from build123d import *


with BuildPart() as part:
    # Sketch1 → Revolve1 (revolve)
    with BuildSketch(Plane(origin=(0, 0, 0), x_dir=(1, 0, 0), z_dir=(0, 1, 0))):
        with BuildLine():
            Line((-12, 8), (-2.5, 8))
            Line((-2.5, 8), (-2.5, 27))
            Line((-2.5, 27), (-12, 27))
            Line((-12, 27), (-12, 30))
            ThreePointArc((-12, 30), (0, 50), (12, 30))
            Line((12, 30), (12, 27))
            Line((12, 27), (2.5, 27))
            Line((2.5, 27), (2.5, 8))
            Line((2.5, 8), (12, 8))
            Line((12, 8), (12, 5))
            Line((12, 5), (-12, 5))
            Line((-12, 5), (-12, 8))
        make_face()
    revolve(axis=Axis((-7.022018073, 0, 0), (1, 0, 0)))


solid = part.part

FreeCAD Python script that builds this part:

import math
import FreeCAD as App
import Part
import Sketcher
Q = App.Units.Quantity

doc = App.newDocument("Part")
body = doc.addObject("PartDesign::Body", "Body")

# Sketch on XZ plane
sketch1 = doc.addObject("Sketcher::SketchObject", "Sketch")
body.addObject(sketch1)
sketch1.AttachmentSupport = (doc.XZ_Plane, [""])
sketch1.MapMode = "FlatFace"
sketch1.addGeometry([
    Part.LineSegment(App.Vector(-2.5, -8, 0), App.Vector(-12, -8, 0)),  # 0
    Part.LineSegment(App.Vector(-12, -8, 0), App.Vector(-12, -5, 0)),  # 1
    Part.LineSegment(App.Vector(-12, -5, 0), App.Vector(12, -5, 0)),  # 2
    Part.LineSegment(App.Vector(12, -5, 0), App.Vector(12, -8, 0)),  # 3
    Part.LineSegment(App.Vector(12, -8, 0), App.Vector(2.5, -8, 0)),  # 4
    Part.LineSegment(App.Vector(2.5, -8, 0), App.Vector(2.5, -27, 0)),  # 5
    Part.LineSegment(App.Vector(2.5, -27, 0), App.Vector(12, -27, 0)),  # 6
    Part.LineSegment(App.Vector(12, -27, 0), App.Vector(12, -30, 0)),  # 7
    Part.ArcOfCircle(Part.Circle(App.Vector(0, -36.4, 0), App.Vector(0, 0, 1), 13.6), math.radians(152), math.radians(388)),  # 8
    Part.LineSegment(App.Vector(-12, -30, 0), App.Vector(-12, -27, 0)),  # 9
    Part.LineSegment(App.Vector(-12, -27, 0), App.Vector(-2.5, -27, 0)),  # 10
    Part.LineSegment(App.Vector(-2.5, -27, 0), App.Vector(-2.5, -8, 0)),  # 11
], False)
sketch1.addConstraint([
    Sketcher.Constraint("Coincident", 0, 2, 1, 1),
    Sketcher.Constraint("Coincident", 1, 2, 2, 1),
    Sketcher.Constraint("Coincident", 2, 2, 3, 1),
    Sketcher.Constraint("Coincident", 3, 2, 4, 1),
    Sketcher.Constraint("Coincident", 4, 2, 5, 1),
    Sketcher.Constraint("Coincident", 5, 2, 6, 1),
    Sketcher.Constraint("Coincident", 6, 2, 7, 1),
    Sketcher.Constraint("Coincident", 7, 2, 8, 2),
    Sketcher.Constraint("Coincident", 8, 1, 9, 1),
    Sketcher.Constraint("Coincident", 9, 2, 10, 1),
    Sketcher.Constraint("Coincident", 10, 2, 11, 1),
    Sketcher.Constraint("Coincident", 11, 2, 0, 1),
    Sketcher.Constraint("Horizontal", 0),
    Sketcher.Constraint("Vertical", 1),
    Sketcher.Constraint("Horizontal", 2),
    Sketcher.Constraint("Vertical", 3),
    Sketcher.Constraint("Horizontal", 4),
    Sketcher.Constraint("Vertical", 5),
    Sketcher.Constraint("Horizontal", 6),
    Sketcher.Constraint("Vertical", 7),
    Sketcher.Constraint("Vertical", 9),
    Sketcher.Constraint("Horizontal", 10),
    Sketcher.Constraint("Vertical", 11),
    Sketcher.Constraint("Symmetric", 0, 2, 3, 2, -2),
    Sketcher.Constraint("Symmetric", 7, 2, 8, 1, -2),
    Sketcher.Constraint("Symmetric", 5, 2, 10, 2, -2),
    Sketcher.Constraint("Vertical", 3, 2, 6, 2),
    Sketcher.Constraint("Equal", 3, 7),
    Sketcher.Constraint("Radius", 8, Q("13.6 mm")),
    Sketcher.Constraint("DistanceX", 2, 1, 2, 2, Q("24 mm")),
    Sketcher.Constraint("DistanceY", 1, 1, 1, 2, Q("3 mm")),
    Sketcher.Constraint("DistanceY", 5, 2, 5, 1, Q("19 mm")),
    Sketcher.Constraint("DistanceX", 0, 2, 0, 1, Q("9.5 mm")),
    Sketcher.Constraint("DistanceY", 0, 2, -1, 1, Q("8 mm")),
])
revolution = doc.addObject("PartDesign::Revolution", "Revolution")
body.addObject(revolution)
revolution.Profile = sketch1
revolution.ReferenceAxis = (sketch1, ["H_Axis"])
revolution.Angle = 360

doc.recompute()
